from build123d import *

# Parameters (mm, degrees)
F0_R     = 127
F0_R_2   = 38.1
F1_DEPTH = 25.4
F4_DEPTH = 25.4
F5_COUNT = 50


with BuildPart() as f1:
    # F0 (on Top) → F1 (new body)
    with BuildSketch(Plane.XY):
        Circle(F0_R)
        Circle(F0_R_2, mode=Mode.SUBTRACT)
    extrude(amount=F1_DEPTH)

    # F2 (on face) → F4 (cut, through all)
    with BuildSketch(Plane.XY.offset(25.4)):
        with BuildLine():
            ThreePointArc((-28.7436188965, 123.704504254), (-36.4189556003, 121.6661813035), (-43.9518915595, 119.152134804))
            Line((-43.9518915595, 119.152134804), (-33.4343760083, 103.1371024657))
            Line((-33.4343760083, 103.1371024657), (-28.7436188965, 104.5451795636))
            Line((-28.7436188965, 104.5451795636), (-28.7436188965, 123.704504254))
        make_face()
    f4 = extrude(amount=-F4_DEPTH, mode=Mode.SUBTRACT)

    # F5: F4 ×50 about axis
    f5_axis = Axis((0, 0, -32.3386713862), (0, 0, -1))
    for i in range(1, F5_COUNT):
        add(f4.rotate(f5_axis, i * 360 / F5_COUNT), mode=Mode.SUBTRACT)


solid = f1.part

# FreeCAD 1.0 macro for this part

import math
import FreeCAD as App
import Part
import Sketcher
Q = App.Units.Quantity

doc = App.newDocument("Part")
body = doc.addObject("PartDesign::Body", "Body")

# Sketch on XY plane
sketch1 = body.newObject("Sketcher::SketchObject", "Sketch")
sketch1.AttachmentSupport = (doc.getObject("XY_Plane"), [""])
sketch1.MapMode = "FlatFace"
sketch1.addGeometry(Part.Circle(App.Vector(0, 0, 0), App.Vector(0, 0, 1), 127), False)
sketch1.addGeometry(Part.Circle(App.Vector(0, 0, 0), App.Vector(0, 0, 1), 38), False)
sketch1.addConstraint(Sketcher.Constraint("Coincident", 0, 3, -1, 1))
sketch1.addConstraint(Sketcher.Constraint("Coincident", 1, 3, -1, 1))
sketch1.addConstraint(Sketcher.Constraint("Diameter", 0, Q("10 in")))
sketch1.addConstraint(Sketcher.Constraint("Diameter", 1, Q("3 in")))
pad1 = body.newObject("PartDesign::Pad", "Pad")
pad1.Profile = sketch1
pad1.Length = Q("1 in")

# Sketch on XY plane
sketch2 = body.newObject("Sketcher::SketchObject", "Sketch001")
sketch2.AttachmentSupport = (doc.getObject("XY_Plane"), [""])
sketch2.MapMode = "FlatFace"
sketch2.AttachmentOffset = App.Placement(App.Vector(0, 0, 1 * 25.4), App.Rotation())
sketch2.addGeometry(Part.ArcOfCircle(Part.Circle(App.Vector(0, 0, 0), App.Vector(0, 0, 1), 127), math.radians(103.08), math.radians(110.25)), False)
sketch2.addGeometry(Part.LineSegment(App.Vector(-44, 119.2, 0), App.Vector(-33.4, 103.1, 0)), False)
sketch2.addGeometry(Part.LineSegment(App.Vector(-33.4, 103.1, 0), App.Vector(-28.7, 104.5, 0)), False)
sketch2.addGeometry(Part.LineSegment(App.Vector(-28.7, 104.5, 0), App.Vector(-28.7, 123.7, 0)), False)
sketch2.addConstraint(Sketcher.Constraint("Coincident", 0, 2, 1, 1))
sketch2.addConstraint(Sketcher.Constraint("Coincident", 1, 2, 2, 1))
sketch2.addConstraint(Sketcher.Constraint("Coincident", 2, 2, 3, 1))
sketch2.addConstraint(Sketcher.Constraint("Coincident", 3, 2, 0, 1))
sketch2.addConstraint(Sketcher.Constraint("Vertical", 3))
sketch2.addConstraint(Sketcher.Constraint("Coincident", 0, 3, -1, 1))
sketch2.addConstraint(Sketcher.Constraint("Radius", 0, Q("5 in")))
sketch2.addConstraint(Sketcher.Constraint("DistanceY", 1, 2, 3, 2, Q("20.567402 mm")))
sketch2.addConstraint(Sketcher.Constraint("Distance", 1, Q("19.159838 mm")))
sketch2.addConstraint(Sketcher.Constraint("Distance", 2, Q("4.897539 mm")))
sketch2.addConstraint(Sketcher.Constraint("DistanceY", 3, 1, 3, 2, Q("19.159325 mm")))
sketch2.addConstraint(Sketcher.Constraint("DistanceX", 0, 2, -1, 1, Q("43.951892 mm")))
pocket1 = body.newObject("PartDesign::Pocket", "Pocket")
pocket1.Profile = sketch2
pocket1.Type = "ThroughAll"
doc.recompute()

polarpattern = body.newObject("PartDesign::PolarPattern", "PolarPattern")
polarpattern.Originals = [pocket1]
polarpattern.Axis = (doc.getObject("Z_Axis"), [""])
polarpattern.Angle = 360
polarpattern.Occurrences = 50
body.Tip = polarpattern

doc.recompute()
